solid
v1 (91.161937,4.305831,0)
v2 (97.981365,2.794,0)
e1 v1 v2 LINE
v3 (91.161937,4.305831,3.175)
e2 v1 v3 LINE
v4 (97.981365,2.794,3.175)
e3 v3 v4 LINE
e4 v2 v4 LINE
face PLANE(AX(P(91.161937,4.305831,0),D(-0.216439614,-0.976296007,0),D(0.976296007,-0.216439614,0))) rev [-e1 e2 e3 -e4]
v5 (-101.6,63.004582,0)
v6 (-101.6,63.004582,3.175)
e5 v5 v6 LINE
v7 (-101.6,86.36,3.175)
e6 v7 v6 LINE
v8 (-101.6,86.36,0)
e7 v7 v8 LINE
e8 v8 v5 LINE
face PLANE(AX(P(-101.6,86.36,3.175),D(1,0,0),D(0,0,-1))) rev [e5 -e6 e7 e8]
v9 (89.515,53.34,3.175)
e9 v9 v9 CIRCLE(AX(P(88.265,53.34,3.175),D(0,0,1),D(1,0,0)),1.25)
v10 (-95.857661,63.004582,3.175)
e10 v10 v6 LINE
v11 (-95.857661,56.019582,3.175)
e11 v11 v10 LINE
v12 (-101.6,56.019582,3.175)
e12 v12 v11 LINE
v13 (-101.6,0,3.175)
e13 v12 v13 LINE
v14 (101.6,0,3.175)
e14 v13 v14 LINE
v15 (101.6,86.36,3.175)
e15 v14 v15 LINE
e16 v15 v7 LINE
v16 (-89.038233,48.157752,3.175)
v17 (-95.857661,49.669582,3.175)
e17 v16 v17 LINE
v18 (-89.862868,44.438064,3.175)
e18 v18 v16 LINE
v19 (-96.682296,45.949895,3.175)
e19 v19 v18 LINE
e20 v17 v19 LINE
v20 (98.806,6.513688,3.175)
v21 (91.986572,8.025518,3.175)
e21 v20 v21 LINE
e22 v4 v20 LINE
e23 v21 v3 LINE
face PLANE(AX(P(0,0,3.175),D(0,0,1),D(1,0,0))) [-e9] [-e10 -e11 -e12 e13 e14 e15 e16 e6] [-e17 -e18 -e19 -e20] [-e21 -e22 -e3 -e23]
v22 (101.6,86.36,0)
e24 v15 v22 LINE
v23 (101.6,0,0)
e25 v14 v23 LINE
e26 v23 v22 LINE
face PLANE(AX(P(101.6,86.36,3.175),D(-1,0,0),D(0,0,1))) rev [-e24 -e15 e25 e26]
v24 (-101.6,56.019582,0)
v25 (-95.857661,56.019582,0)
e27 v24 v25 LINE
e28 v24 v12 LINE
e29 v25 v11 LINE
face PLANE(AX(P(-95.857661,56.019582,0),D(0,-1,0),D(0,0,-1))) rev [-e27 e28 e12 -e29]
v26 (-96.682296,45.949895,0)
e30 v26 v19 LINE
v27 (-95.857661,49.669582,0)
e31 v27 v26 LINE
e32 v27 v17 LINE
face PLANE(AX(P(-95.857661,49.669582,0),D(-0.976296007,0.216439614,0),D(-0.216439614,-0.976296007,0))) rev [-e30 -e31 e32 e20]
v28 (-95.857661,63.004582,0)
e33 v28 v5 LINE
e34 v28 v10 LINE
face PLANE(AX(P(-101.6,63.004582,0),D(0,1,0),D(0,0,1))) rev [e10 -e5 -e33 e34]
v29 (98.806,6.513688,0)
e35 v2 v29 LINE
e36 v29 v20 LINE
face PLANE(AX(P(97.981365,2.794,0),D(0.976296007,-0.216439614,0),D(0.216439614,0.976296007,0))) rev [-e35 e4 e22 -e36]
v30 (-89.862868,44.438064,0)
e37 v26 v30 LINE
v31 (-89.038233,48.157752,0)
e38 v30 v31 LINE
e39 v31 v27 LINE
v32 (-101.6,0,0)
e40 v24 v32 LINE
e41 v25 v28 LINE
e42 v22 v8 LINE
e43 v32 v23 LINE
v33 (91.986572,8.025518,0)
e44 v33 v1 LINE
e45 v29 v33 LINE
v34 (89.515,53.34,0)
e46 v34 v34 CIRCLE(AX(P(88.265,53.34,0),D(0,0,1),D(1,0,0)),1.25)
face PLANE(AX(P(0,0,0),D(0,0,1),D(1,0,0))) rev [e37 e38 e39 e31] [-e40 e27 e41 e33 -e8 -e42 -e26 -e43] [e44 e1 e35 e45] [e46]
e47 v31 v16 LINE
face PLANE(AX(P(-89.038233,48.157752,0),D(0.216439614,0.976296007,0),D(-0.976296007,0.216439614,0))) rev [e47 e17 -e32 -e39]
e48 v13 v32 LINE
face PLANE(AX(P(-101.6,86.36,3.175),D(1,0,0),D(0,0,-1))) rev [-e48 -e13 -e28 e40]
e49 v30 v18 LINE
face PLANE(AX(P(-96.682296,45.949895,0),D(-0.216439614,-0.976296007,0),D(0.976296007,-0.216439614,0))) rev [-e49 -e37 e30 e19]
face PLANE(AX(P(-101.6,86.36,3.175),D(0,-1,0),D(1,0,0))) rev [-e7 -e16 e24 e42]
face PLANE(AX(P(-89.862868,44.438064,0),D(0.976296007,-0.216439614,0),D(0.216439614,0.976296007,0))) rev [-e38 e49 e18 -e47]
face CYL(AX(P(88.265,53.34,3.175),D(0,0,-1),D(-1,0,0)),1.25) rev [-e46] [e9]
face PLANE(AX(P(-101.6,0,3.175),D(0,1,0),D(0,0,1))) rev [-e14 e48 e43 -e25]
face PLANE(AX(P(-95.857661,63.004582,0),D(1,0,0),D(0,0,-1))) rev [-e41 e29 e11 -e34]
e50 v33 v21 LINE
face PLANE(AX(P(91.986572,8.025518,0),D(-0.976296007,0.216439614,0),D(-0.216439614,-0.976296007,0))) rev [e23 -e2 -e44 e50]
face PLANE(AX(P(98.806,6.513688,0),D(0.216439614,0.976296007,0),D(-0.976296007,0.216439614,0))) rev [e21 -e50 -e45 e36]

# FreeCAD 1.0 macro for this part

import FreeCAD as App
import Part
import Sketcher

V = App.Vector
Q = App.Units.Quantity


def add_polygon(sketch, points):
    """Adds a closed chain of lines whose ends are joined by coincident constraints."""
    first, n = sketch.GeometryCount, len(points)
    for a, b in zip(points, points[1:] + points[:1]):
        sketch.addGeometry(Part.LineSegment(App.Vector(*a, 0), App.Vector(*b, 0)), False)
    for i in range(n):
        sketch.addConstraint(Sketcher.Constraint("Coincident", first + i, 2, first + (i + 1) % n, 1))

doc = App.newDocument("Part")
body = doc.addObject("PartDesign::Body", "Body")

# Sketch on XY plane
sketch1 = body.newObject("Sketcher::SketchObject", "Sketch")
sketch1.AttachmentSupport = (doc.getObject("XY_Plane"), [""])
sketch1.MapMode = "FlatFace"
add_polygon(sketch1, [(-101.6, 86.4), (-101.6, 0), (101.6, 0), (101.6, 86.4)])  # lines 0-3
sketch1.addGeometry(Part.Circle(V(88.3, 53.3, 0), V(0, 0, 1), 1.2), False)  # 4
sketch1.addConstraint([
    Sketcher.Constraint("Vertical", 0),
    Sketcher.Constraint("Horizontal", 1),
    Sketcher.Constraint("Vertical", 2),
    Sketcher.Constraint("Horizontal", 3),
    Sketcher.Constraint("Symmetric", 0, 2, 1, 2, -1, 1),
    Sketcher.Constraint("DistanceX", 1, 1, 1, 2, Q("8 in")),
    Sketcher.Constraint("DistanceY", 0, 2, 0, 1, Q("3.4 in")),
    Sketcher.Constraint("DistanceY", -1, 1, 4, 3, Q("2.1 in")),
    Sketcher.Constraint("Diameter", 4, 2.5),
    Sketcher.Constraint("DistanceX", -1, 1, 4, 3, Q("3.475 in")),
])
pad1 = body.newObject("PartDesign::Pad", "Pad")
pad1.Profile = sketch1
pad1.Length = Q("0.125 in")

# Sketch on XY plane
sketch2 = body.newObject("Sketcher::SketchObject", "Sketch001")
sketch2.AttachmentSupport = (doc.getObject("XY_Plane"), [""])
sketch2.MapMode = "FlatFace"
sketch2.AttachmentOffset = App.Placement(V(0, 0, 0.125 * 25.4), App.Rotation())
add_polygon(sketch2, [(92, 8), (91.2, 4.3), (98, 2.8), (98.8, 6.5)])  # lines 0-3
sketch2.addConstraint([
    Sketcher.Constraint("Perpendicular", 0, 1),
    Sketcher.Constraint("Perpendicular", 1, 2),
    Sketcher.Constraint("Perpendicular", 2, 3),
    Sketcher.Constraint("Angle", 0, Q("-102.5 deg")),
    Sketcher.Constraint("Distance", 0, Q("0.15 in")),
    Sketcher.Constraint("DistanceY", -1, 1, 1, 2, Q("0.11 in")),
    Sketcher.Constraint("DistanceX", -1, 1, 2, 2, Q("3.89 in")),
    Sketcher.Constraint("Distance", 1, Q("0.275 in")),
])
pocket1 = body.newObject("PartDesign::Pocket", "Pocket")
pocket1.Profile = sketch2
pocket1.Type = "ThroughAll"
doc.recompute()

datumline = body.newObject("PartDesign::Line", "DatumLine")
datumline.Placement = App.Placement(V(0, 0, 0), App.Rotation(V(0, 0, 1), V(-0.976296007, 0.216439614, 0)))
linearpattern = body.newObject("PartDesign::LinearPattern", "LinearPattern")
linearpattern.Originals = [pocket1]
linearpattern.Direction = (datumline, [""])
linearpattern.Mode = "offset"
linearpattern.Offset = Q("7.575 in")
linearpattern.Occurrences = 2
body.Tip = linearpattern

# Sketch on XY plane
sketch3 = body.newObject("Sketcher::SketchObject", "Sketch002")
sketch3.AttachmentSupport = (doc.getObject("XY_Plane"), [""])
sketch3.MapMode = "FlatFace"
sketch3.AttachmentOffset = App.Placement(V(0, 0, 0.125 * 25.4), App.Rotation())
add_polygon(sketch3, [(-102, 63), (-102, 56), (-96, 56), (-96, 63)])  # lines 0-3
sketch3.addConstraint([
    Sketcher.Constraint("Vertical", 0),
    Sketcher.Constraint("Horizontal", 1),
    Sketcher.Constraint("Vertical", 2),
    Sketcher.Constraint("Horizontal", 3),
    Sketcher.Constraint("DistanceX", 0, 2, -1, 1, Q("4 in")),
    Sketcher.Constraint("DistanceY", 0, 2, 0, 1, Q("0.275 in")),
    Sketcher.Constraint("DistanceX", 1, 1, 1, 2, 5.742339),
    Sketcher.Constraint("DistanceY", -1, 1, 0, 2, 56.019582),
])
pocket2 = body.newObject("PartDesign::Pocket", "Pocket001")
pocket2.Profile = sketch3
pocket2.Type = "ThroughAll"

doc.recompute()
